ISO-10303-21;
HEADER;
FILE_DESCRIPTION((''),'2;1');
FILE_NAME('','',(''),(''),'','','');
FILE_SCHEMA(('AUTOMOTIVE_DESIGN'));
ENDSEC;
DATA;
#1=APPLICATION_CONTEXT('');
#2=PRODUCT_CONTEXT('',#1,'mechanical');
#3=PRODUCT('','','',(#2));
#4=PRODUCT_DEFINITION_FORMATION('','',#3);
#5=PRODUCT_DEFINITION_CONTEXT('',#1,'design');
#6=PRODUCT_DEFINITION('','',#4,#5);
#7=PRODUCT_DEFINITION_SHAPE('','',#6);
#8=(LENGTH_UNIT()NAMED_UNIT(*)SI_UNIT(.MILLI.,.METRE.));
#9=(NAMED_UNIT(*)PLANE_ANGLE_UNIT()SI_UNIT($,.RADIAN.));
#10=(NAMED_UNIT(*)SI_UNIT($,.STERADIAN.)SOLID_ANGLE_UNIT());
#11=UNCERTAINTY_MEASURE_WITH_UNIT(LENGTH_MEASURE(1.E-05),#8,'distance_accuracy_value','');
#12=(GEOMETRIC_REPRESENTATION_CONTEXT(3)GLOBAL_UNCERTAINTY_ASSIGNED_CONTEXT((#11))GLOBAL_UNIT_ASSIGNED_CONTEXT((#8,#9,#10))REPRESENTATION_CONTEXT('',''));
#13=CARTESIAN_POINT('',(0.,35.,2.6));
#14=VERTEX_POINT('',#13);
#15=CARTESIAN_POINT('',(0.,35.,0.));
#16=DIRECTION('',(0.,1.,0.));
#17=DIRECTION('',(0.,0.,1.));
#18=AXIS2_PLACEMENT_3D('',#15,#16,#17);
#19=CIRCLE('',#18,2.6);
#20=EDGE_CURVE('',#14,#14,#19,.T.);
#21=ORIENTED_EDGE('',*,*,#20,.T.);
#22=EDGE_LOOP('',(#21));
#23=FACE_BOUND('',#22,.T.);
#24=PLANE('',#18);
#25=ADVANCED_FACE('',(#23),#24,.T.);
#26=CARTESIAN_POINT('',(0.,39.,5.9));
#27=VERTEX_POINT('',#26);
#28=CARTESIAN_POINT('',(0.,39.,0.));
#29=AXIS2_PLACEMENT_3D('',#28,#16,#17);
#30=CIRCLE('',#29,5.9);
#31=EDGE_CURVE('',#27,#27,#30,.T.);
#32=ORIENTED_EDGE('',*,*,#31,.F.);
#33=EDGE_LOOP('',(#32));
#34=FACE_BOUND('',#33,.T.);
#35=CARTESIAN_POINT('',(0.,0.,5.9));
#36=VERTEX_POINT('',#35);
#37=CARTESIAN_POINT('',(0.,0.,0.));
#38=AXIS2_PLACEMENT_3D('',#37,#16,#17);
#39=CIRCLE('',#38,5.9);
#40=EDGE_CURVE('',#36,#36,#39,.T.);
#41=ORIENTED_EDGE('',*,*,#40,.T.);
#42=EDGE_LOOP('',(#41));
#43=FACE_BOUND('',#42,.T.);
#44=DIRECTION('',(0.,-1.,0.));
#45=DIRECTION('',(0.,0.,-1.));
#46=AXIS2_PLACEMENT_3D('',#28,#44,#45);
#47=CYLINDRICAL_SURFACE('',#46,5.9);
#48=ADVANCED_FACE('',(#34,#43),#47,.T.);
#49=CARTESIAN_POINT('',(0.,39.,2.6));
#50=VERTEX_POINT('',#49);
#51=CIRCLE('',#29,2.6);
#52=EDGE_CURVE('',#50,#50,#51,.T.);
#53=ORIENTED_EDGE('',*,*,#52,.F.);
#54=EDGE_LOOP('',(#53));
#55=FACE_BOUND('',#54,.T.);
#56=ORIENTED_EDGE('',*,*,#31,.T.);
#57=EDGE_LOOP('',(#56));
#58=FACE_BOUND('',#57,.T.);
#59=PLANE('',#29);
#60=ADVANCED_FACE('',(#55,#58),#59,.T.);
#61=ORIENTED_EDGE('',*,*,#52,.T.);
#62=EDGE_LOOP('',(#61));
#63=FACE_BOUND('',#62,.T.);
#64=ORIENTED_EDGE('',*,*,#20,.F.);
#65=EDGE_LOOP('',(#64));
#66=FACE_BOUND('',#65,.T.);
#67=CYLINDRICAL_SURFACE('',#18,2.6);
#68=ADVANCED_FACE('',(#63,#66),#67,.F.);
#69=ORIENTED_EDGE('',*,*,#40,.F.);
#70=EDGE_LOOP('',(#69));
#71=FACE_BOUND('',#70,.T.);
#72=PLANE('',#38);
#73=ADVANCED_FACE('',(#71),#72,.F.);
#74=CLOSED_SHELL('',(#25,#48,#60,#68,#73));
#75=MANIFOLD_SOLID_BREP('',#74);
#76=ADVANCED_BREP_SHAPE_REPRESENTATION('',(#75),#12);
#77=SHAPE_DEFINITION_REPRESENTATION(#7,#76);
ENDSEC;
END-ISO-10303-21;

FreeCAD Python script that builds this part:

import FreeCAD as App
import Part
import Sketcher
Q = App.Units.Quantity

doc = App.newDocument("Part")
body = doc.addObject("PartDesign::Body", "Body")

# Sketch on XZ plane
sketch1 = body.newObject("Sketcher::SketchObject", "Sketch")
sketch1.AttachmentSupport = (doc.getObject("XZ_Plane"), [""])
sketch1.MapMode = "FlatFace"
sketch1.addGeometry(Part.Circle(App.Vector(0, 0, 0), App.Vector(0, 0, 1), 6), False)
sketch1.addConstraint([
    Sketcher.Constraint("Coincident", 0, 3, -1, 1),
    Sketcher.Constraint("Diameter", 0, Q("11.8 mm")),
])
pad1 = body.newObject("PartDesign::Pad", "Pad")
pad1.Profile = sketch1
pad1.Length = 39
pad1.Reversed = True

# Sketch on XZ plane
sketch2 = body.newObject("Sketcher::SketchObject", "Sketch001")
sketch2.AttachmentSupport = (doc.getObject("XZ_Plane"), [""])
sketch2.MapMode = "FlatFace"
sketch2.AttachmentOffset = App.Placement(App.Vector(0, 0, -39), App.Rotation())
sketch2.addGeometry(Part.Circle(App.Vector(0, 0, 0), App.Vector(0, 0, 1), 2.6), False)
sketch2.addConstraint([
    Sketcher.Constraint("Coincident", 0, 3, -1, 1),
    Sketcher.Constraint("Diameter", 0, Q("5.2 mm")),
])
pocket1 = body.newObject("PartDesign::Pocket", "Pocket")
pocket1.Profile = sketch2
pocket1.Length = 4
pocket1.Reversed = True

doc.recompute()
